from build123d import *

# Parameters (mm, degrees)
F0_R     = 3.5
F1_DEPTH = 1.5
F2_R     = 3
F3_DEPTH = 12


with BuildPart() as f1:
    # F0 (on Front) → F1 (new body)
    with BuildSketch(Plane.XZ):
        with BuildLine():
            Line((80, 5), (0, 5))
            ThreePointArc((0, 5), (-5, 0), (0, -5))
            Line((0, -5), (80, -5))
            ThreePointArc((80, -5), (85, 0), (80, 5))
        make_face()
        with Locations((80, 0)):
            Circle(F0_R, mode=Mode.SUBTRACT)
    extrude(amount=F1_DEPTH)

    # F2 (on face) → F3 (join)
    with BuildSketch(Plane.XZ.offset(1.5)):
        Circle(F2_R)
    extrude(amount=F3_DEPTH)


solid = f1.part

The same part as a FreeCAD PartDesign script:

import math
import FreeCAD as App
import Part
import Sketcher

V = App.Vector

doc = App.newDocument("Part")
body = doc.addObject("PartDesign::Body", "Body")

# Sketch on XZ plane
sketch1 = doc.addObject("Sketcher::SketchObject", "Sketch")
body.addObject(sketch1)
sketch1.AttachmentSupport = (doc.XZ_Plane, [""])
sketch1.MapMode = "FlatFace"
sketch1.addGeometry(Part.LineSegment(V(80, 5, 0), V(0, 5, 0)), False)
sketch1.addGeometry(Part.ArcOfCircle(Part.Circle(V(0, 0, 0), V(0, 0, 1), 5), math.radians(90), math.radians(270)), False)
sketch1.addGeometry(Part.LineSegment(V(0, -5, 0), V(80, -5, 0)), False)
sketch1.addGeometry(Part.ArcOfCircle(Part.Circle(V(80, 0, 0), V(0, 0, 1), 5), math.radians(-90), math.radians(90)), False)
sketch1.addGeometry(Part.Circle(V(80, 0, 0), V(0, 0, 1), 3.5), False)
sketch1.addConstraint(Sketcher.Constraint("Tangent", 0, 2, 1, 1))
sketch1.addConstraint(Sketcher.Constraint("Tangent", 1, 2, 2, 1))
sketch1.addConstraint(Sketcher.Constraint("Tangent", 2, 2, 3, 1))
sketch1.addConstraint(Sketcher.Constraint("Tangent", 3, 2, 0, 1))
sketch1.addConstraint(Sketcher.Constraint("Horizontal", 0))
sketch1.addConstraint(Sketcher.Constraint("Horizontal", 2))
sketch1.addConstraint(Sketcher.Constraint("Coincident", 1, 3, -1, 1))
sketch1.addConstraint(Sketcher.Constraint("Coincident", 4, 3, 3, 3))
sketch1.addConstraint(Sketcher.Constraint("Diameter", 4, 7.0))
sketch1.addConstraint(Sketcher.Constraint("Radius", 1, 5.0))
sketch1.addConstraint(Sketcher.Constraint("DistanceX", 0, 2, 0, 1, 80.0))
pad1 = doc.addObject("PartDesign::Pad", "Pad")
body.addObject(pad1)
pad1.Profile = sketch1
pad1.Length = 1.5

# Sketch on XZ plane
sketch2 = doc.addObject("Sketcher::SketchObject", "Sketch001")
body.addObject(sketch2)
sketch2.AttachmentSupport = (doc.XZ_Plane, [""])
sketch2.MapMode = "FlatFace"
sketch2.AttachmentOffset = App.Placement(V(0, 0, 1.5), App.Rotation())
sketch2.addGeometry(Part.Circle(V(0, 0, 0), V(0, 0, 1), 3), False)
sketch2.addConstraint(Sketcher.Constraint("Coincident", 0, 3, -1, 1))
sketch2.addConstraint(Sketcher.Constraint("Diameter", 0, 6.0))
pad2 = doc.addObject("PartDesign::Pad", "Pad001")
body.addObject(pad2)
pad2.Profile = sketch2
pad2.Length = 12

doc.recompute()
